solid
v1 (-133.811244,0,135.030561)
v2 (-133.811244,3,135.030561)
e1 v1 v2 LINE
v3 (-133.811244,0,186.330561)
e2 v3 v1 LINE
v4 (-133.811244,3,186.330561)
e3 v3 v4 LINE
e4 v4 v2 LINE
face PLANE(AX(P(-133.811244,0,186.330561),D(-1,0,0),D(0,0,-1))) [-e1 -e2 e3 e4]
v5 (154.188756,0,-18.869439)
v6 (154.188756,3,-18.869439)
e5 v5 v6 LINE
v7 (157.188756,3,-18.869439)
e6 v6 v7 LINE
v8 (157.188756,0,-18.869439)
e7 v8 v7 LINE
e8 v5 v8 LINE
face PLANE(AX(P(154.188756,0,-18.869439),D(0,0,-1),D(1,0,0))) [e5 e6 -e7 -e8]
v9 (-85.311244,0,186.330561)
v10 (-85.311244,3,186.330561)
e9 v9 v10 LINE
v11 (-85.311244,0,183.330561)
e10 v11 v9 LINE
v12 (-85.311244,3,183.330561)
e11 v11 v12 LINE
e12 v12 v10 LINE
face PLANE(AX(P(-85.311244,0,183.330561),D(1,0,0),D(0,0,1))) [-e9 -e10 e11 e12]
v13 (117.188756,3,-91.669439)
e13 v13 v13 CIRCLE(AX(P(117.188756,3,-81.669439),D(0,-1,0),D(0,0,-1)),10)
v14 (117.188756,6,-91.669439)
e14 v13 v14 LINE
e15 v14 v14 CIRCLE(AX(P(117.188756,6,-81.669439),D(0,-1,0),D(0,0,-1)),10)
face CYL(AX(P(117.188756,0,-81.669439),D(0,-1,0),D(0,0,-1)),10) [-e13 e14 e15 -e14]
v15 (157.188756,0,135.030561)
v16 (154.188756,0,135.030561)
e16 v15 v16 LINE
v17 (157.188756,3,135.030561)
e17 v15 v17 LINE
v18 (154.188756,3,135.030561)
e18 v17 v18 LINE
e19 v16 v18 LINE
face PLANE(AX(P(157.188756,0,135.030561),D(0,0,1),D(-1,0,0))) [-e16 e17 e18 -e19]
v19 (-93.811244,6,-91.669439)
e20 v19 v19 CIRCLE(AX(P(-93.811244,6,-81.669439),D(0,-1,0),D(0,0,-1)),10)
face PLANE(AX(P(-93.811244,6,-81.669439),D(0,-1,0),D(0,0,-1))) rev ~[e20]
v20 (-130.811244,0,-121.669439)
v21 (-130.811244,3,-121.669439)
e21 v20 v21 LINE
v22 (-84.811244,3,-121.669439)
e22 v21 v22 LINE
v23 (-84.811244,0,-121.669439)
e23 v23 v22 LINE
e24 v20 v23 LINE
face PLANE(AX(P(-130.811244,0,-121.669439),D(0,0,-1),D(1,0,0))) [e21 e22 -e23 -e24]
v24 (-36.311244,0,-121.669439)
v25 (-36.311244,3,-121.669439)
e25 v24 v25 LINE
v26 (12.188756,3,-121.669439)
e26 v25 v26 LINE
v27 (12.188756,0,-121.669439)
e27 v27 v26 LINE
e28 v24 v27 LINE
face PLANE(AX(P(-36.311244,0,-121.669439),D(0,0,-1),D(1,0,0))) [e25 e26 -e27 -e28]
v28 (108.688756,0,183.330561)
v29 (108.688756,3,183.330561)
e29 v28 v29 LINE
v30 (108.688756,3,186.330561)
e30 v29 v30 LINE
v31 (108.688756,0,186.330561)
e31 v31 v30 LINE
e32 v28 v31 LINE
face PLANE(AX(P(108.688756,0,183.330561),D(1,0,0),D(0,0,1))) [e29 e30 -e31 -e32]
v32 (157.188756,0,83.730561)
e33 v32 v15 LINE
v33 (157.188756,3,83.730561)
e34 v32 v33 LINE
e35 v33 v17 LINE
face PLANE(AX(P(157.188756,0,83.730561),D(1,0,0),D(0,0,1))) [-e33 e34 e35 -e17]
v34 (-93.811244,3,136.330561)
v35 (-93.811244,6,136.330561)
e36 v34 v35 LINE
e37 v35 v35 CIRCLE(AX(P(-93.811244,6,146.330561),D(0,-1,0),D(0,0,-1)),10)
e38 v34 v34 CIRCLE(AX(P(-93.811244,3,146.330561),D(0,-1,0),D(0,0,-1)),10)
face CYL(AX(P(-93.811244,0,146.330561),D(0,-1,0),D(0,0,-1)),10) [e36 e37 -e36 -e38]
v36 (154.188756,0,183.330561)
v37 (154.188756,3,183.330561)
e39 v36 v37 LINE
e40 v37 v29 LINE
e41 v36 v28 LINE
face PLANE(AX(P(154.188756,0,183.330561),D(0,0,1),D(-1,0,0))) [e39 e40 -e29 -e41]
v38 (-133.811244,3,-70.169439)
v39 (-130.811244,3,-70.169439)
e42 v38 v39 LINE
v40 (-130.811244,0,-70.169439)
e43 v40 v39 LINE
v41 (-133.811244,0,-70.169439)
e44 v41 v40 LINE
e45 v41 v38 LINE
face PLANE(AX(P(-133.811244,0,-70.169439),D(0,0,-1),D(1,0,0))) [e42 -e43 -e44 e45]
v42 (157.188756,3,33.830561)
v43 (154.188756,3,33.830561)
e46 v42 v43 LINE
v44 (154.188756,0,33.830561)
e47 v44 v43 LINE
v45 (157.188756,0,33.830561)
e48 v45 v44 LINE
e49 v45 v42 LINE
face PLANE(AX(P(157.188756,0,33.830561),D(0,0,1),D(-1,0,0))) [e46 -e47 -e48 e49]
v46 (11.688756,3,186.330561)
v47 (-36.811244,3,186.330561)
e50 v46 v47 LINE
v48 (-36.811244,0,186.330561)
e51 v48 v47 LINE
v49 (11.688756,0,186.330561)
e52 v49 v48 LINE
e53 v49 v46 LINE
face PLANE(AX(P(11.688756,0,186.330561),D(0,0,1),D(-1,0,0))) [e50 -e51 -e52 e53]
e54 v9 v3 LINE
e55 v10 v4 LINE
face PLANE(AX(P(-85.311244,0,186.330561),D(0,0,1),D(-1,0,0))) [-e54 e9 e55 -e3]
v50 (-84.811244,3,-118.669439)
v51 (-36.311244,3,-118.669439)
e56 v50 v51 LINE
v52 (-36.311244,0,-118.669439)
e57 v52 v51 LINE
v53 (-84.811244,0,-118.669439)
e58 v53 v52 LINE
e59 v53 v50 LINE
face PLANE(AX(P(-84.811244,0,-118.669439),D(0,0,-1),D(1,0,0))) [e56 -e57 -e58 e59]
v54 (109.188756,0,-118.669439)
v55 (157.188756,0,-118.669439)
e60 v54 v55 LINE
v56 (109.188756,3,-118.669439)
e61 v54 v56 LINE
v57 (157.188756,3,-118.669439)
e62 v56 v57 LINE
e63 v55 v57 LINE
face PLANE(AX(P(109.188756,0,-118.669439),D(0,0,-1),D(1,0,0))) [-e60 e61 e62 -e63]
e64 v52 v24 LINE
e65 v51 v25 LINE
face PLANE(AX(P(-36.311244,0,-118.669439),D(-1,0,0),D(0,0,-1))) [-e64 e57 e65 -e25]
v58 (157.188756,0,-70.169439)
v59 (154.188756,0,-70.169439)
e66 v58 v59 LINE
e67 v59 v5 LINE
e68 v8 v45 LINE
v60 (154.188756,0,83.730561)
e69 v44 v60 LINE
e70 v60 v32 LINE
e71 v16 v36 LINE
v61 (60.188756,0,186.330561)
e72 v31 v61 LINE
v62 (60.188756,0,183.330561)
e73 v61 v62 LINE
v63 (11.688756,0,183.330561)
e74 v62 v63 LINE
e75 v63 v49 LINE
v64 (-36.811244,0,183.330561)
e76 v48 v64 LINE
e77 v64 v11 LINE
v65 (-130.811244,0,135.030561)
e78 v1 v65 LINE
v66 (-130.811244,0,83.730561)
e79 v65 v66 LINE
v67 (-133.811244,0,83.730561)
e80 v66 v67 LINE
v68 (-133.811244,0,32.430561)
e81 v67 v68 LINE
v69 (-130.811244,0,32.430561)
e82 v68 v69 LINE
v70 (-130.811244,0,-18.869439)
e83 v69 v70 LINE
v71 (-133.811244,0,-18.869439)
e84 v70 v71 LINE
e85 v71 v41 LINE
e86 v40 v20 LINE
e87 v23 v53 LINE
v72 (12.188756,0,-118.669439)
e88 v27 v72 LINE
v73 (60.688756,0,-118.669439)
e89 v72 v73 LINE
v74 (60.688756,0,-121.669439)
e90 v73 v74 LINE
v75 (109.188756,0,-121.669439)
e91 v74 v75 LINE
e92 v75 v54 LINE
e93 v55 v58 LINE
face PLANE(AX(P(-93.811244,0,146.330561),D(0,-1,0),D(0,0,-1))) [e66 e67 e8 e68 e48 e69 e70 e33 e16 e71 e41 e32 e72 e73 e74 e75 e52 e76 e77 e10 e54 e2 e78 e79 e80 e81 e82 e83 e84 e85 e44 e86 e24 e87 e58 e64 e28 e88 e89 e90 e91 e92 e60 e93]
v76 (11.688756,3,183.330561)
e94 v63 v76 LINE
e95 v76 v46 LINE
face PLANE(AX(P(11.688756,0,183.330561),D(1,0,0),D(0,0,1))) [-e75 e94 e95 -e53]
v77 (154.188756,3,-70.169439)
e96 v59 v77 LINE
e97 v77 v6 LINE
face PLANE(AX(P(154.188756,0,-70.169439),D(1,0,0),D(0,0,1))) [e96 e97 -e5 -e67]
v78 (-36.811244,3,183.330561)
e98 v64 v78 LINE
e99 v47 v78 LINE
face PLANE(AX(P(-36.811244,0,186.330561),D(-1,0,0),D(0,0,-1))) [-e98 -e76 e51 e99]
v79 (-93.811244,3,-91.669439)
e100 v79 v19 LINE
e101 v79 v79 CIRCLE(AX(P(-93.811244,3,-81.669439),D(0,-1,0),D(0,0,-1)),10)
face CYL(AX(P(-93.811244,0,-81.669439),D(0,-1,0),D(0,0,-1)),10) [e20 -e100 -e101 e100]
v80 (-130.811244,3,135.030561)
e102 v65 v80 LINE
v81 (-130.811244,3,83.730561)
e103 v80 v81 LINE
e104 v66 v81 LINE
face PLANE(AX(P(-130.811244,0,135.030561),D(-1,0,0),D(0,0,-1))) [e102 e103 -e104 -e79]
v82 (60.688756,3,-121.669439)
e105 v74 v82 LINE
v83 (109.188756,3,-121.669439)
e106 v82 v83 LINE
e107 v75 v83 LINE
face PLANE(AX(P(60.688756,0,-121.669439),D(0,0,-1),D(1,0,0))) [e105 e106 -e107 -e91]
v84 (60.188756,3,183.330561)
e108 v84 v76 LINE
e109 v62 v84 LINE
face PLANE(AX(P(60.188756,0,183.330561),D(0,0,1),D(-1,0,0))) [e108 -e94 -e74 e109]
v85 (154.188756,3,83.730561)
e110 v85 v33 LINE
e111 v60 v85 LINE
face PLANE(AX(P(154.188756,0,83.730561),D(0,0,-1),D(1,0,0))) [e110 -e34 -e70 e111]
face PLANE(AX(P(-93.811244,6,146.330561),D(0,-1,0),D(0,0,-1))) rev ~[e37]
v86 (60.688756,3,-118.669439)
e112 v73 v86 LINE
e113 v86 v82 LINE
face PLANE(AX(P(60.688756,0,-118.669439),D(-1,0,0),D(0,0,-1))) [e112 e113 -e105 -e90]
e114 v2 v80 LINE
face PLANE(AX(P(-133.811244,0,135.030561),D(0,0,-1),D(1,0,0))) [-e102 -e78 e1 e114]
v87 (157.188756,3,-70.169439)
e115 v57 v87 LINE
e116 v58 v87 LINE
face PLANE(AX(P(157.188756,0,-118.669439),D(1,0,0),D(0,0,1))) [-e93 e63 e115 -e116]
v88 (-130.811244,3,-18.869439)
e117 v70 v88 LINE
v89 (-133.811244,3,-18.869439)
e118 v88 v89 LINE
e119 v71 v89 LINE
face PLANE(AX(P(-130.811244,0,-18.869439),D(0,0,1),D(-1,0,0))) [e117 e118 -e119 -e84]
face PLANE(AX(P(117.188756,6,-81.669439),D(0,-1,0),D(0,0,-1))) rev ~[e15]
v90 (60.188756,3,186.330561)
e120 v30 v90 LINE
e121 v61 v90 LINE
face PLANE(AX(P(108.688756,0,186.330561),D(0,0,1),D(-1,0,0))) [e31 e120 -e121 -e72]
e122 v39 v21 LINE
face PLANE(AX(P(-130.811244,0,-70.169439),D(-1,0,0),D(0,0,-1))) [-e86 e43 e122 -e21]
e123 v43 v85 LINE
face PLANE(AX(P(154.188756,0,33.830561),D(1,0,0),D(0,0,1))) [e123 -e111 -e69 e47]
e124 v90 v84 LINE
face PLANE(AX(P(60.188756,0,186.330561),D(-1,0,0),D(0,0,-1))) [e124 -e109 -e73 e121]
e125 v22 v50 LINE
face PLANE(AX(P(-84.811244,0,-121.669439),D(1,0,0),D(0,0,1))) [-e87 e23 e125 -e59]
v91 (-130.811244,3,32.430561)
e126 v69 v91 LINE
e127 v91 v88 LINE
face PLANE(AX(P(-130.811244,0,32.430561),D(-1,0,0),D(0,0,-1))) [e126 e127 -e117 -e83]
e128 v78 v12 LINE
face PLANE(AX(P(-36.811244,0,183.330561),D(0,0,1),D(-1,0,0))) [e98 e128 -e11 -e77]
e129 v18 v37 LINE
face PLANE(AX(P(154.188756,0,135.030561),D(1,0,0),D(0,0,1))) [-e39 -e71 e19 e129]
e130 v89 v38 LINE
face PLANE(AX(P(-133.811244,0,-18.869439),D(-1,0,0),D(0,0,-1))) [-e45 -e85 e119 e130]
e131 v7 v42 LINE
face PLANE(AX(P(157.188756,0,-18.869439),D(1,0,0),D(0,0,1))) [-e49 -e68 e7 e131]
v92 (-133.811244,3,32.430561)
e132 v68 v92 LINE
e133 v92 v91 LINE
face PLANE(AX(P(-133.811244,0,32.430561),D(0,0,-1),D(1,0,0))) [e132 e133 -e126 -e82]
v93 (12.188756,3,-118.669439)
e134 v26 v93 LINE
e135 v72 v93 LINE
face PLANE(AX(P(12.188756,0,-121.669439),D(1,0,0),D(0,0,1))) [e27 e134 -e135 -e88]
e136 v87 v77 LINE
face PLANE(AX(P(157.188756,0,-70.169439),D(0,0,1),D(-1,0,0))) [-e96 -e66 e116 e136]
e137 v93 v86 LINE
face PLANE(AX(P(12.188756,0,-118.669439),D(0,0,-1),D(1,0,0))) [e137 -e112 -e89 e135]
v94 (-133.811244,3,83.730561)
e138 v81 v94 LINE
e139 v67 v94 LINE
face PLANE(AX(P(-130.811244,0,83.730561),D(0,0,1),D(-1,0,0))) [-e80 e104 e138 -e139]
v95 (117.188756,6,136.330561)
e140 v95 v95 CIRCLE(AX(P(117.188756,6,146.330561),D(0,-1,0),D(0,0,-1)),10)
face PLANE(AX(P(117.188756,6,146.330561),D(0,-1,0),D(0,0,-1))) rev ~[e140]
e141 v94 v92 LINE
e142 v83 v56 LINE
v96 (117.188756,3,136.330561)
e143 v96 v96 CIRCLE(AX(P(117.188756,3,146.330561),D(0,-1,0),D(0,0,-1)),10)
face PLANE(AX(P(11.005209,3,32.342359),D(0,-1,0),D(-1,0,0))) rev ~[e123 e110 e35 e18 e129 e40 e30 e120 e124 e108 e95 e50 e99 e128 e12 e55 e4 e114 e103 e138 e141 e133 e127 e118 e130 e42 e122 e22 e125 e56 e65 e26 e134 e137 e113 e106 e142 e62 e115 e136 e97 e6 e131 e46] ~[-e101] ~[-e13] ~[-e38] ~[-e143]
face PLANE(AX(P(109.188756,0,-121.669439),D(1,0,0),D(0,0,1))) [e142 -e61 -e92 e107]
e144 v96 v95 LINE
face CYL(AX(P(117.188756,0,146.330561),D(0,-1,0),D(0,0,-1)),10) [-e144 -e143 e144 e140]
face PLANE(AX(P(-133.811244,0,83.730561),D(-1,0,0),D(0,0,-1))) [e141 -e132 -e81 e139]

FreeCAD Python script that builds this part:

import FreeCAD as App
import Part
import Sketcher
from FreeCAD import Vector


def add_polygon(sketch, points):
    """Adds a closed chain of lines whose ends are joined by coincident constraints."""
    first, n = sketch.GeometryCount, len(points)
    for a, b in zip(points, points[1:] + points[:1]):
        sketch.addGeometry(Part.LineSegment(App.Vector(*a, 0), App.Vector(*b, 0)), False)
    for i in range(n):
        sketch.addConstraint(Sketcher.Constraint("Coincident", first + i, 2, first + (i + 1) % n, 1))

doc = App.newDocument("Part")
body = doc.addObject("PartDesign::Body", "Body")

# Sketch on XZ plane
sketch1 = doc.addObject("Sketcher::SketchObject", "Sketch")
body.addObject(sketch1)
sketch1.AttachmentSupport = (doc.XZ_Plane, [""])
sketch1.MapMode = "FlatFace"
add_polygon(sketch1, [(-84.8, -121.7), (-130.8, -121.7), (-130.8, -70.2), (-133.8, -70.2), (-133.8, -18.9), (-130.8, -18.9), (-130.8, 32.4), (-133.8, 32.4), (-133.8, 83.7), (-130.8, 83.7), (-130.8, 135), (-133.8, 135), (-133.8, 186.3), (-85.3, 186.3), (-85.3, 183.3), (-36.8, 183.3), (-36.8, 186.3), (11.7, 186.3), (11.7, 183.3), (60.2, 183.3), (60.2, 186.3), (108.7, 186.3), (108.7, 183.3), (154.2, 183.3), (154.2, 135), (157.2, 135), (157.2, 83.7), (154.2, 83.7), (154.2, 33.8), (157.2, 33.8), (157.2, -18.9), (154.2, -18.9), (154.2, -70.2), (157.2, -70.2), (157.2, -118.7), (109.2, -118.7), (109.2, -121.7), (60.7, -121.7), (60.7, -118.7), (12.2, -118.7), (12.2, -121.7), (-36.3, -121.7), (-36.3, -118.7), (-84.8, -118.7)])  # lines 0-43
sketch1.addConstraint([
    Sketcher.Constraint("Horizontal", 0),
    Sketcher.Constraint("Vertical", 1),
    Sketcher.Constraint("Horizontal", 2),
    Sketcher.Constraint("Vertical", 3),
    Sketcher.Constraint("Horizontal", 4),
    Sketcher.Constraint("Vertical", 5),
    Sketcher.Constraint("Horizontal", 6),
    Sketcher.Constraint("Vertical", 7),
    Sketcher.Constraint("Horizontal", 8),
    Sketcher.Constraint("Vertical", 9),
    Sketcher.Constraint("Horizontal", 10),
    Sketcher.Constraint("Vertical", 11),
    Sketcher.Constraint("Horizontal", 12),
    Sketcher.Constraint("Vertical", 13),
    Sketcher.Constraint("Horizontal", 14),
    Sketcher.Constraint("Vertical", 15),
    Sketcher.Constraint("Horizontal", 16),
    Sketcher.Constraint("Vertical", 17),
    Sketcher.Constraint("Horizontal", 18),
    Sketcher.Constraint("Vertical", 19),
    Sketcher.Constraint("Horizontal", 20),
    Sketcher.Constraint("Vertical", 21),
    Sketcher.Constraint("Horizontal", 22),
    Sketcher.Constraint("Vertical", 23),
    Sketcher.Constraint("Horizontal", 24),
    Sketcher.Constraint("Vertical", 25),
    Sketcher.Constraint("Horizontal", 26),
    Sketcher.Constraint("Vertical", 27),
    Sketcher.Constraint("Horizontal", 28),
    Sketcher.Constraint("Vertical", 29),
    Sketcher.Constraint("Horizontal", 30),
    Sketcher.Constraint("Vertical", 31),
    Sketcher.Constraint("Horizontal", 32),
    Sketcher.Constraint("Vertical", 33),
    Sketcher.Constraint("Horizontal", 34),
    Sketcher.Constraint("Vertical", 35),
    Sketcher.Constraint("Horizontal", 36),
    Sketcher.Constraint("Vertical", 37),
    Sketcher.Constraint("Horizontal", 38),
    Sketcher.Constraint("Vertical", 39),
    Sketcher.Constraint("Horizontal", 40),
    Sketcher.Constraint("Vertical", 41),
    Sketcher.Constraint("Horizontal", 42),
    Sketcher.Constraint("Vertical", 43),
    Sketcher.Constraint("Horizontal", 12, 2, 15, 2),
    Sketcher.Constraint("Horizontal", 14, 2, 17, 2),
    Sketcher.Constraint("Horizontal", 16, 2, 19, 2),
    Sketcher.Constraint("Horizontal", 18, 2, 21, 2),
    Sketcher.Constraint("Horizontal", 10, 2, 23, 2),
    Sketcher.Constraint("Horizontal", 8, 2, 25, 2),
    Sketcher.Constraint("Horizontal", 4, 2, 29, 2),
    Sketcher.Constraint("Horizontal", 2, 2, 31, 2),
    Sketcher.Constraint("Horizontal", 0, 2, 35, 2),
    Sketcher.Constraint("Horizontal", 34, 2, 37, 2),
    Sketcher.Constraint("Horizontal", 36, 2, 39, 2),
    Sketcher.Constraint("Horizontal", 38, 2, 41, 2),
    Sketcher.Constraint("Vertical", 1, 2, 4, 2),
    Sketcher.Constraint("Vertical", 3, 2, 6, 2),
    Sketcher.Constraint("Vertical", 5, 2, 8, 2),
    Sketcher.Constraint("Vertical", 7, 2, 10, 2),
    Sketcher.Constraint("Vertical", 23, 2, 26, 2),
    Sketcher.Constraint("Vertical", 25, 2, 28, 2),
    Sketcher.Constraint("Vertical", 27, 2, 30, 2),
    Sketcher.Constraint("Vertical", 29, 2, 32, 2),
    Sketcher.Constraint("Equal", 12, 14),
    Sketcher.Constraint("Equal", 14, 16),
    Sketcher.Constraint("Equal", 16, 18),
    Sketcher.Constraint("Equal", 18, 20),
    Sketcher.Constraint("Equal", 10, 24),
    Sketcher.Constraint("Equal", 20, 36),
    Sketcher.Constraint("Equal", 36, 38),
    Sketcher.Constraint("Equal", 38, 40),
    Sketcher.Constraint("Equal", 40, 42),
    Sketcher.Constraint("Equal", 3, 5),
    Sketcher.Constraint("Equal", 5, 7),
    Sketcher.Constraint("Equal", 7, 9),
    Sketcher.Constraint("Equal", 9, 11),
    Sketcher.Constraint("Equal", 32, 13),
    Sketcher.Constraint("Equal", 42, 33),
    Sketcher.Constraint("Equal", 21, 35),
    Sketcher.Constraint("DistanceX", 0, 2, 0, 1, 46.0),
    Sketcher.Constraint("DistanceX", 2, 2, 2, 1, 3.0),
    Sketcher.Constraint("DistanceX", 34, 2, 34, 1, 48.0),
    Sketcher.Constraint("DistanceX", 12, 1, 12, 2, 48.5),
    Sketcher.Constraint("DistanceY", 3, 1, 3, 2, 51.3),
    Sketcher.Constraint("DistanceY", 27, 2, 27, 1, 49.9),
    Sketcher.Constraint("DistanceY", 0, 2, -1, 1, 121.669439),
    Sketcher.Constraint("DistanceX", 0, 2, -1, 1, 130.811244),
])
pad1 = doc.addObject("PartDesign::Pad", "Pad")
body.addObject(pad1)
pad1.Profile = sketch1
pad1.Length = 3
pad1.Reversed = True

# Sketch on XZ plane
sketch2 = doc.addObject("Sketcher::SketchObject", "Sketch001")
body.addObject(sketch2)
sketch2.AttachmentSupport = (doc.XZ_Plane, [""])
sketch2.MapMode = "FlatFace"
sketch2.addGeometry([
    Part.Circle(Vector(-94, 146, 0), Vector(0, 0, 1), 10),
    Part.Circle(Vector(117, 146, 0), Vector(0, 0, 1), 10),
    Part.Circle(Vector(117, -82, 0), Vector(0, 0, 1), 10),
    Part.Circle(Vector(-94, -82, 0), Vector(0, 0, 1), 10),
], False)
sketch2.addConstraint([
    Sketcher.Constraint("Equal", 0, 1),
    Sketcher.Constraint("Equal", 1, 2),
    Sketcher.Constraint("Equal", 2, 3),
    Sketcher.Constraint("Horizontal", 0, 3, 1, 3),
    Sketcher.Constraint("Horizontal", 2, 3, 3, 3),
    Sketcher.Constraint("Vertical", 1, 3, 2, 3),
    Sketcher.Constraint("Vertical", 0, 3, 3, 3),
    Sketcher.Constraint("Diameter", 0, 20.0),
    Sketcher.Constraint("DistanceX", 0, 3, 1, 3, 211.0),
    Sketcher.Constraint("DistanceY", 2, 3, 1, 3, 228.0),
    Sketcher.Constraint("DistanceY", -1, 1, 0, 3, 146.330561),
    Sketcher.Constraint("DistanceX", 0, 3, -1, 1, 93.811244),
])
pad2 = doc.addObject("PartDesign::Pad", "Pad001")
body.addObject(pad2)
pad2.Profile = sketch2
pad2.Length = 6
pad2.Reversed = True

doc.recompute()
